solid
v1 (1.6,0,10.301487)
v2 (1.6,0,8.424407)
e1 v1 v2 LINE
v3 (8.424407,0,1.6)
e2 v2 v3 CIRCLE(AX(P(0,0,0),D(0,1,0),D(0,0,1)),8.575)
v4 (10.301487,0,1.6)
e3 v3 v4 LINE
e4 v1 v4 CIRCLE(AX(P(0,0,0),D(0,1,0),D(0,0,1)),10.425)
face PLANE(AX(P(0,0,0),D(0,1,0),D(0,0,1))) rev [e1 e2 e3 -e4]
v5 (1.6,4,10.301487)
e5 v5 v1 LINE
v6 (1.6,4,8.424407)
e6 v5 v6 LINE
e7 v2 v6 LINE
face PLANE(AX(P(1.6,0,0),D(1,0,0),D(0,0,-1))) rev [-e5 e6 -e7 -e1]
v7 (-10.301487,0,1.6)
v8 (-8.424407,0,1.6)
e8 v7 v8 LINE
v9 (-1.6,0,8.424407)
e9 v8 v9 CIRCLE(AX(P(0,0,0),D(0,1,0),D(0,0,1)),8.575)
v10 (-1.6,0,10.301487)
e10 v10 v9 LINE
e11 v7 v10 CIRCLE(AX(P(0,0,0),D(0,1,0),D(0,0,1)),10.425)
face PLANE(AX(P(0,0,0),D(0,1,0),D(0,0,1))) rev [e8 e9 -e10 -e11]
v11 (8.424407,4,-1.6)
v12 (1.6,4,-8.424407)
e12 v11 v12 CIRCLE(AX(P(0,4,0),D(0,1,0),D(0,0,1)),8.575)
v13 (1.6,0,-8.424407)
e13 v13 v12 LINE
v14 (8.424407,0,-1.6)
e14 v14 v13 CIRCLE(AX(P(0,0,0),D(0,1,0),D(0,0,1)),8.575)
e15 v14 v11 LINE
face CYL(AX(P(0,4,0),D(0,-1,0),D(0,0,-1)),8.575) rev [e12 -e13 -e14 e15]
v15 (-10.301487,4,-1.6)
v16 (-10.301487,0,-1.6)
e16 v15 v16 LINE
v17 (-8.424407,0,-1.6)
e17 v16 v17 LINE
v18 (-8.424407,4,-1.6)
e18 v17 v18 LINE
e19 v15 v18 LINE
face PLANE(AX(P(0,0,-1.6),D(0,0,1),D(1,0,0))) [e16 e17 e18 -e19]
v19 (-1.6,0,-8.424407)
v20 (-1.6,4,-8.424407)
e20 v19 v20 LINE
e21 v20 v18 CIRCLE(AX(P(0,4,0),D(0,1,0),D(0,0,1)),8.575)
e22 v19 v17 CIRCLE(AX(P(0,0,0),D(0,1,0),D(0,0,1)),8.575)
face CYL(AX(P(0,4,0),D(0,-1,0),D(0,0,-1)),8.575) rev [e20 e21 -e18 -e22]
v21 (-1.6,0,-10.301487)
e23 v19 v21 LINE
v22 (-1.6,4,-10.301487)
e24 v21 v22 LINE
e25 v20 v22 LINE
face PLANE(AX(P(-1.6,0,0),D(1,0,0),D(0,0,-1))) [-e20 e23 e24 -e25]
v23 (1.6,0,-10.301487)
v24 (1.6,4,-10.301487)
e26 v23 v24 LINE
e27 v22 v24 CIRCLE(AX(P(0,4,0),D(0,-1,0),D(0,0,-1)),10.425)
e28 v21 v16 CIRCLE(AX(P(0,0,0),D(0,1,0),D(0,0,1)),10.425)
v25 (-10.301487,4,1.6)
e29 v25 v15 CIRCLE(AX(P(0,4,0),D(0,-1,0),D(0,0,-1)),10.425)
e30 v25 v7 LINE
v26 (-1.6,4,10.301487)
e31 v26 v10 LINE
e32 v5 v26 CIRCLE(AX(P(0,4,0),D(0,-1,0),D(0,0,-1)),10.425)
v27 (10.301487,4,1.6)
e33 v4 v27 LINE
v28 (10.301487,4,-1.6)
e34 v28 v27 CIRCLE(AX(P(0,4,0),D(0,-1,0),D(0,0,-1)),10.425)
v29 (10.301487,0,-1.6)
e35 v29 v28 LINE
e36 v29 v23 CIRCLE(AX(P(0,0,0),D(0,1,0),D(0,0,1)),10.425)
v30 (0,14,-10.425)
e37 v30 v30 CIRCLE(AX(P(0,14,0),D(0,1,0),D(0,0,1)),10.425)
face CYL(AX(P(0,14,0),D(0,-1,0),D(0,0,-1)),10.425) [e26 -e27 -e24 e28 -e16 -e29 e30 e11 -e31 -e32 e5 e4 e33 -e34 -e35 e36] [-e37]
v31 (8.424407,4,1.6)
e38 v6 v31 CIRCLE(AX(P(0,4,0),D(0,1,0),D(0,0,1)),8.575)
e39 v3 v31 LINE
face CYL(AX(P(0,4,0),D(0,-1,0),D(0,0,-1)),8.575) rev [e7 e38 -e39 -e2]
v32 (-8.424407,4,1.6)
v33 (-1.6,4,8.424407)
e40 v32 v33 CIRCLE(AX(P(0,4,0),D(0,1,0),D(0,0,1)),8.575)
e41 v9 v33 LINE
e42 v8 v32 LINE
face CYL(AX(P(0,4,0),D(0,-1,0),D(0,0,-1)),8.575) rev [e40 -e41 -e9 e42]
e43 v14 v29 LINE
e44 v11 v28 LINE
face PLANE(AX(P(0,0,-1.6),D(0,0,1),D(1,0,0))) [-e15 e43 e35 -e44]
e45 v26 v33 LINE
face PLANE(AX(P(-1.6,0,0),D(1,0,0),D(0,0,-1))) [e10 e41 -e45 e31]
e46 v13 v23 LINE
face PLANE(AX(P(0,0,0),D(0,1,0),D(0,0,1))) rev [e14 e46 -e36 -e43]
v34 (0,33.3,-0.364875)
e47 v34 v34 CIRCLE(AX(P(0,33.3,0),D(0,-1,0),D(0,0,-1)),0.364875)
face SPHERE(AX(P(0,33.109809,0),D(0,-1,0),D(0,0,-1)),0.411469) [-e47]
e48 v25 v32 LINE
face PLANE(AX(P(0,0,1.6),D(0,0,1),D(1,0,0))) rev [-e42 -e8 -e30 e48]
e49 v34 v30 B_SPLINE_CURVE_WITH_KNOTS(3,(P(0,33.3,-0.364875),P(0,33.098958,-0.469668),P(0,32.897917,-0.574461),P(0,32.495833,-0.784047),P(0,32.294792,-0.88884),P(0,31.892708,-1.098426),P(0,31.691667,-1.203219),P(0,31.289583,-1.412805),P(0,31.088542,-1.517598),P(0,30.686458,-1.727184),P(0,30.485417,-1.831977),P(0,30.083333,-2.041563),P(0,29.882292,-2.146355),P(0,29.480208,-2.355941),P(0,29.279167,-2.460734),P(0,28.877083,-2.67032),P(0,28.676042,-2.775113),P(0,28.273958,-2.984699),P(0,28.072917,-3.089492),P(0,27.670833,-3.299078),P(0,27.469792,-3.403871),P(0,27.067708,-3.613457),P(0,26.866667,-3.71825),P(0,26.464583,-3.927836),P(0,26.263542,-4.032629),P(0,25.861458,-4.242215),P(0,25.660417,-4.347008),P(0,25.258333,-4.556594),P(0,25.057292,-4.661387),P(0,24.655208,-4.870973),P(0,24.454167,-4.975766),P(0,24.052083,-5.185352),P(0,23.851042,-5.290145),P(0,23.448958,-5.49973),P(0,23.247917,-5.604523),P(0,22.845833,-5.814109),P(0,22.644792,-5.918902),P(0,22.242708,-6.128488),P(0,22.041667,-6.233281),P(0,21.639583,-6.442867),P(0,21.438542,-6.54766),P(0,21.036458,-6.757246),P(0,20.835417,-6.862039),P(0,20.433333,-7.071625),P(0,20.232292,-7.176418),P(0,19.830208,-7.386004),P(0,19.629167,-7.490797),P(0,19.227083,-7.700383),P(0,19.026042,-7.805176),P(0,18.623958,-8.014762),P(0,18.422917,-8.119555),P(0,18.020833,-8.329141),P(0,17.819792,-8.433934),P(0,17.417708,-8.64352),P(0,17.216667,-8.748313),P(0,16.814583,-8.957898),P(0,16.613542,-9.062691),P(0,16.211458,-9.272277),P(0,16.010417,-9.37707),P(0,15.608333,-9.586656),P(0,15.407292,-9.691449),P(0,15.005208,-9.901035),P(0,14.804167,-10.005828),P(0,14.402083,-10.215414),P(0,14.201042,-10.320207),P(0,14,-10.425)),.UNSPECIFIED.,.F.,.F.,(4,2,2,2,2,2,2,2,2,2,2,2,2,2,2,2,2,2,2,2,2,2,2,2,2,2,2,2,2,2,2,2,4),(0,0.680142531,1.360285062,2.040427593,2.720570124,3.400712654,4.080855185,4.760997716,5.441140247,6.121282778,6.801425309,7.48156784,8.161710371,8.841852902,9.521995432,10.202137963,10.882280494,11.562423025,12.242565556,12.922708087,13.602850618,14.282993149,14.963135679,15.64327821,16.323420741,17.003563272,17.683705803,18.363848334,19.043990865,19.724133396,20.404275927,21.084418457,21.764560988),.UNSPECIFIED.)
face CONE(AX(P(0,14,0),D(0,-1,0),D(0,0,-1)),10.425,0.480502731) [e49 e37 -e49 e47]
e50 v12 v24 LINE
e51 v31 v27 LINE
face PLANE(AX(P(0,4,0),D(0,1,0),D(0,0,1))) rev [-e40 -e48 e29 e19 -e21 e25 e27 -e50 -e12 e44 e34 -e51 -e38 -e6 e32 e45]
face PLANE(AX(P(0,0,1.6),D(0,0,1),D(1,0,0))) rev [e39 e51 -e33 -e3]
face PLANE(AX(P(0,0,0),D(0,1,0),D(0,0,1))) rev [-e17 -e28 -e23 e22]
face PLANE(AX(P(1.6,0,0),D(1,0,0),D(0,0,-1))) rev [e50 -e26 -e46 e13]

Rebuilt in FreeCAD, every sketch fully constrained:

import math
import FreeCAD as App
import Part
import Sketcher

V = App.Vector
Q = App.Units.Quantity

doc = App.newDocument("Part")
body = doc.addObject("PartDesign::Body", "Body")

# Sketch on XZ plane
sketch1 = body.newObject("Sketcher::SketchObject", "Sketch")
sketch1.AttachmentSupport = (doc.getObject("XZ_Plane"), [""])
sketch1.MapMode = "FlatFace"
sketch1.addGeometry(Part.Circle(V(0, 0, 0), V(0, 0, 1), 10), False)
sketch1.addGeometry(Part.Circle(V(0, 0, 0), V(0, 0, 1), 9), False)
sketch1.addConstraint(Sketcher.Constraint("Coincident", 0, 3, -1, 1))
sketch1.addConstraint(Sketcher.Constraint("Coincident", 1, 3, -1, 1))
sketch1.addConstraint(Sketcher.Constraint("Diameter", 0, Q("20.85 mm")))
sketch1.addConstraint(Sketcher.Constraint("Diameter", 1, Q("17.15 mm")))
pad1 = body.newObject("PartDesign::Pad", "Pad")
pad1.Profile = sketch1
pad1.Length = 14
pad1.Reversed = True

# Sketch on XZ plane
sketch2 = body.newObject("Sketcher::SketchObject", "Sketch001")
sketch2.AttachmentSupport = (doc.getObject("XZ_Plane"), [""])
sketch2.MapMode = "FlatFace"
sketch2.addGeometry(Part.Circle(V(0, 0, 0), V(0, 0, 1), 9), False)
sketch2.addConstraint(Sketcher.Constraint("Coincident", 0, 3, -1, 1))
sketch2.addConstraint(Sketcher.Constraint("Diameter", 0, Q("17.15 mm")))
pad2 = body.newObject("PartDesign::Pad", "Pad001")
pad2.Profile = sketch2
pad2.Length = 14
pad2.Reversed = True

# Sketch on XZ plane
sketch3 = body.newObject("Sketcher::SketchObject", "Sketch002")
sketch3.AttachmentSupport = (doc.getObject("XZ_Plane"), [""])
sketch3.MapMode = "FlatFace"
sketch3.addGeometry(Part.Circle(V(0, 0, 0), V(0, 0, 1), 9), False)
sketch3.addConstraint(Sketcher.Constraint("Coincident", 0, 3, -1, 1))
sketch3.addConstraint(Sketcher.Constraint("Diameter", 0, Q("17.15 mm")))
pocket1 = body.newObject("PartDesign::Pocket", "Pocket")
pocket1.Profile = sketch3
pocket1.Length = 4

# Sketch on XZ plane
sketch4 = body.newObject("Sketcher::SketchObject", "Sketch003")
sketch4.AttachmentSupport = (doc.getObject("XZ_Plane"), [""])
sketch4.MapMode = "FlatFace"
sketch4.addGeometry(Part.LineSegment(V(-1.6, -8.4, 0), V(-1.6, -11.3, 0)), False)
sketch4.addGeometry(Part.LineSegment(V(-1.6, -11.3, 0), V(1.6, -11.3, 0)), False)
sketch4.addGeometry(Part.LineSegment(V(1.6, -11.3, 0), V(1.6, -8.4, 0)), False)
sketch4.addGeometry(Part.ArcOfCircle(Part.Circle(V(0, 0, 0), V(0, 0, 1), 8.6), math.radians(-101), math.radians(-79)), False)
sketch4.addGeometry(Part.LineSegment(V(-10.9, -1.6, 0), V(-8.4, -1.6, 0)), False)
sketch4.addGeometry(Part.ArcOfCircle(Part.Circle(V(0, 0, 0), V(0, 0, 1), 8.6), math.radians(169), math.radians(191)), False)
sketch4.addGeometry(Part.LineSegment(V(-8.4, 1.6, 0), V(-10.9, 1.6, 0)), False)
sketch4.addGeometry(Part.LineSegment(V(-10.9, 1.6, 0), V(-10.9, -1.6, 0)), False)
sketch4.addGeometry(Part.LineSegment(V(-1.6, 11, 0), V(-1.6, 8.4, 0)), False)
sketch4.addGeometry(Part.ArcOfCircle(Part.Circle(V(0, 0, 0), V(0, 0, 1), 8.6), math.radians(90), math.radians(100.75)), False)
sketch4.addGeometry(Part.ArcOfCircle(Part.Circle(V(0, 0, 0), V(0, 0, 1), 8.6), math.radians(79.25), math.radians(90)), False)
sketch4.addGeometry(Part.LineSegment(V(1.6, 8.4, 0), V(1.6, 11, 0)), False)
sketch4.addGeometry(Part.LineSegment(V(1.6, 11, 0), V(-1.6, 11, 0)), False)
sketch4.addGeometry(Part.ArcOfCircle(Part.Circle(V(0, 0, 0), V(0, 0, 1), 8.6), math.radians(-11), math.radians(11)), False)
sketch4.addGeometry(Part.LineSegment(V(8.4, -1.6, 0), V(11, -1.6, 0)), False)
sketch4.addGeometry(Part.LineSegment(V(11, -1.6, 0), V(11, 1.6, 0)), False)
sketch4.addGeometry(Part.LineSegment(V(11, 1.6, 0), V(8.4, 1.6, 0)), False)
sketch4.addConstraint(Sketcher.Constraint("Coincident", 0, 2, 1, 1))
sketch4.addConstraint(Sketcher.Constraint("Coincident", 1, 2, 2, 1))
sketch4.addConstraint(Sketcher.Constraint("Coincident", 2, 2, 3, 2))
sketch4.addConstraint(Sketcher.Constraint("Coincident", 3, 1, 0, 1))
sketch4.addConstraint(Sketcher.Constraint("Coincident", 4, 2, 5, 2))
sketch4.addConstraint(Sketcher.Constraint("Coincident", 5, 1, 6, 1))
sketch4.addConstraint(Sketcher.Constraint("Coincident", 6, 2, 7, 1))
sketch4.addConstraint(Sketcher.Constraint("Coincident", 7, 2, 4, 1))
sketch4.addConstraint(Sketcher.Constraint("Coincident", 8, 2, 9, 2))
sketch4.addConstraint(Sketcher.Constraint("Tangent", 9, 1, 10, 2))
sketch4.addConstraint(Sketcher.Constraint("Coincident", 10, 1, 11, 1))
sketch4.addConstraint(Sketcher.Constraint("Coincident", 11, 2, 12, 1))
sketch4.addConstraint(Sketcher.Constraint("Coincident", 12, 2, 8, 1))
sketch4.addConstraint(Sketcher.Constraint("Coincident", 13, 1, 14, 1))
sketch4.addConstraint(Sketcher.Constraint("Coincident", 14, 2, 15, 1))
sketch4.addConstraint(Sketcher.Constraint("Coincident", 15, 2, 16, 1))
sketch4.addConstraint(Sketcher.Constraint("Coincident", 16, 2, 13, 2))
sketch4.addConstraint(Sketcher.Constraint("Vertical", 0))
sketch4.addConstraint(Sketcher.Constraint("Horizontal", 1))
sketch4.addConstraint(Sketcher.Constraint("Vertical", 2))
sketch4.addConstraint(Sketcher.Constraint("Horizontal", 4))
sketch4.addConstraint(Sketcher.Constraint("Horizontal", 6))
sketch4.addConstraint(Sketcher.Constraint("Vertical", 7))
sketch4.addConstraint(Sketcher.Constraint("Vertical", 8))
sketch4.addConstraint(Sketcher.Constraint("Vertical", 11))
sketch4.addConstraint(Sketcher.Constraint("Horizontal", 12))
sketch4.addConstraint(Sketcher.Constraint("Horizontal", 14))
sketch4.addConstraint(Sketcher.Constraint("Vertical", 15))
sketch4.addConstraint(Sketcher.Constraint("Horizontal", 16))
sketch4.addConstraint(Sketcher.Constraint("Coincident", 3, 3, -1, 1))
sketch4.addConstraint(Sketcher.Constraint("Coincident", 5, 3, -1, 1))
sketch4.addConstraint(Sketcher.Constraint("Coincident", 9, 3, -1, 1))
sketch4.addConstraint(Sketcher.Constraint("Coincident", 13, 3, -1, 1))
sketch4.addConstraint(Sketcher.Constraint("Equal", 3, 5))
sketch4.addConstraint(Sketcher.Constraint("Equal", 5, 9))
sketch4.addConstraint(Sketcher.Constraint("Equal", 9, 10))
sketch4.addConstraint(Sketcher.Constraint("Equal", 10, 13))
sketch4.addConstraint(Sketcher.Constraint("PointOnObject", 9, 1, -2))
sketch4.addConstraint(Sketcher.Constraint("Horizontal", 2, 2, 3, 1))
sketch4.addConstraint(Sketcher.Constraint("Horizontal", 8, 2, 10, 1))
sketch4.addConstraint(Sketcher.Constraint("Horizontal", 7, 2, 13, 1))
sketch4.addConstraint(Sketcher.Constraint("Horizontal", 6, 2, 15, 2))
sketch4.addConstraint(Sketcher.Constraint("Vertical", 4, 2, 5, 1))
sketch4.addConstraint(Sketcher.Constraint("Vertical", 3, 1, 8, 2))
sketch4.addConstraint(Sketcher.Constraint("Equal", 12, 7))
sketch4.addConstraint(Sketcher.Constraint("DistanceX", 1, 1, 1, 2, Q("3.2 mm")))
sketch4.addConstraint(Sketcher.Constraint("Radius", 3, Q("8.575 mm")))
sketch4.addConstraint(Sketcher.Constraint("DistanceY", 8, 2, 8, 1, Q("2.53925 mm")))
sketch4.addConstraint(Sketcher.Constraint("DistanceX", 4, 1, 4, 2, Q("2.477864 mm")))
sketch4.addConstraint(Sketcher.Constraint("DistanceX", 14, 1, 14, 2, Q("2.600637 mm")))
sketch4.addConstraint(Sketcher.Constraint("DistanceY", 0, 2, 0, 1, Q("2.833906 mm")))
pocket2 = body.newObject("PartDesign::Pocket", "Pocket001")
pocket2.Profile = sketch4
pocket2.Length = 4

# Sketch on YZ plane
sketch5 = body.newObject("Sketcher::SketchObject", "Sketch004")
sketch5.AttachmentSupport = (doc.getObject("YZ_Plane"), [""])
sketch5.MapMode = "FlatFace"
sketch5.addGeometry(Part.LineSegment(V(14, -10.43, 0), V(33.3, -0.36, 0)), False)
sketch5.addGeometry(Part.ArcOfCircle(Part.Circle(V(33.11, 0, 0), V(0, 0, 1), 0.41), math.radians(-62), math.radians(0)), False)
sketch5.addGeometry(Part.LineSegment(V(33.52, 0, 0), V(14, 0, 0)), False)
sketch5.addGeometry(Part.LineSegment(V(14, 0, 0), V(14, -10.43, 0)), False)
sketch5.addConstraint(Sketcher.Constraint("Tangent", 0, 2, 1, 1))
sketch5.addConstraint(Sketcher.Constraint("Coincident", 1, 2, 2, 1))
sketch5.addConstraint(Sketcher.Constraint("Coincident", 2, 2, 3, 1))
sketch5.addConstraint(Sketcher.Constraint("Coincident", 3, 2, 0, 1))
sketch5.addConstraint(Sketcher.Constraint("Horizontal", 2))
sketch5.addConstraint(Sketcher.Constraint("Vertical", 3))
sketch5.addConstraint(Sketcher.Constraint("PointOnObject", 1, 3, -1))
sketch5.addConstraint(Sketcher.Constraint("PointOnObject", 1, 2, -1))
sketch5.addConstraint(Sketcher.Constraint("DistanceX", -1, 1, 2, 2, Q("14 mm")))
sketch5.addConstraint(Sketcher.Constraint("DistanceX", -1, 1, 0, 2, Q("33.3 mm")))
sketch5.addConstraint(Sketcher.Constraint("DistanceY", 3, 2, 3, 1, Q("10.425 mm")))
sketch5.addConstraint(Sketcher.Constraint("Radius", 1, Q("0.411469 mm")))
revolution = body.newObject("PartDesign::Revolution", "Revolution")
revolution.Profile = sketch5
revolution.ReferenceAxis = (sketch5, ["H_Axis"])
revolution.Angle = 360

doc.recompute()
